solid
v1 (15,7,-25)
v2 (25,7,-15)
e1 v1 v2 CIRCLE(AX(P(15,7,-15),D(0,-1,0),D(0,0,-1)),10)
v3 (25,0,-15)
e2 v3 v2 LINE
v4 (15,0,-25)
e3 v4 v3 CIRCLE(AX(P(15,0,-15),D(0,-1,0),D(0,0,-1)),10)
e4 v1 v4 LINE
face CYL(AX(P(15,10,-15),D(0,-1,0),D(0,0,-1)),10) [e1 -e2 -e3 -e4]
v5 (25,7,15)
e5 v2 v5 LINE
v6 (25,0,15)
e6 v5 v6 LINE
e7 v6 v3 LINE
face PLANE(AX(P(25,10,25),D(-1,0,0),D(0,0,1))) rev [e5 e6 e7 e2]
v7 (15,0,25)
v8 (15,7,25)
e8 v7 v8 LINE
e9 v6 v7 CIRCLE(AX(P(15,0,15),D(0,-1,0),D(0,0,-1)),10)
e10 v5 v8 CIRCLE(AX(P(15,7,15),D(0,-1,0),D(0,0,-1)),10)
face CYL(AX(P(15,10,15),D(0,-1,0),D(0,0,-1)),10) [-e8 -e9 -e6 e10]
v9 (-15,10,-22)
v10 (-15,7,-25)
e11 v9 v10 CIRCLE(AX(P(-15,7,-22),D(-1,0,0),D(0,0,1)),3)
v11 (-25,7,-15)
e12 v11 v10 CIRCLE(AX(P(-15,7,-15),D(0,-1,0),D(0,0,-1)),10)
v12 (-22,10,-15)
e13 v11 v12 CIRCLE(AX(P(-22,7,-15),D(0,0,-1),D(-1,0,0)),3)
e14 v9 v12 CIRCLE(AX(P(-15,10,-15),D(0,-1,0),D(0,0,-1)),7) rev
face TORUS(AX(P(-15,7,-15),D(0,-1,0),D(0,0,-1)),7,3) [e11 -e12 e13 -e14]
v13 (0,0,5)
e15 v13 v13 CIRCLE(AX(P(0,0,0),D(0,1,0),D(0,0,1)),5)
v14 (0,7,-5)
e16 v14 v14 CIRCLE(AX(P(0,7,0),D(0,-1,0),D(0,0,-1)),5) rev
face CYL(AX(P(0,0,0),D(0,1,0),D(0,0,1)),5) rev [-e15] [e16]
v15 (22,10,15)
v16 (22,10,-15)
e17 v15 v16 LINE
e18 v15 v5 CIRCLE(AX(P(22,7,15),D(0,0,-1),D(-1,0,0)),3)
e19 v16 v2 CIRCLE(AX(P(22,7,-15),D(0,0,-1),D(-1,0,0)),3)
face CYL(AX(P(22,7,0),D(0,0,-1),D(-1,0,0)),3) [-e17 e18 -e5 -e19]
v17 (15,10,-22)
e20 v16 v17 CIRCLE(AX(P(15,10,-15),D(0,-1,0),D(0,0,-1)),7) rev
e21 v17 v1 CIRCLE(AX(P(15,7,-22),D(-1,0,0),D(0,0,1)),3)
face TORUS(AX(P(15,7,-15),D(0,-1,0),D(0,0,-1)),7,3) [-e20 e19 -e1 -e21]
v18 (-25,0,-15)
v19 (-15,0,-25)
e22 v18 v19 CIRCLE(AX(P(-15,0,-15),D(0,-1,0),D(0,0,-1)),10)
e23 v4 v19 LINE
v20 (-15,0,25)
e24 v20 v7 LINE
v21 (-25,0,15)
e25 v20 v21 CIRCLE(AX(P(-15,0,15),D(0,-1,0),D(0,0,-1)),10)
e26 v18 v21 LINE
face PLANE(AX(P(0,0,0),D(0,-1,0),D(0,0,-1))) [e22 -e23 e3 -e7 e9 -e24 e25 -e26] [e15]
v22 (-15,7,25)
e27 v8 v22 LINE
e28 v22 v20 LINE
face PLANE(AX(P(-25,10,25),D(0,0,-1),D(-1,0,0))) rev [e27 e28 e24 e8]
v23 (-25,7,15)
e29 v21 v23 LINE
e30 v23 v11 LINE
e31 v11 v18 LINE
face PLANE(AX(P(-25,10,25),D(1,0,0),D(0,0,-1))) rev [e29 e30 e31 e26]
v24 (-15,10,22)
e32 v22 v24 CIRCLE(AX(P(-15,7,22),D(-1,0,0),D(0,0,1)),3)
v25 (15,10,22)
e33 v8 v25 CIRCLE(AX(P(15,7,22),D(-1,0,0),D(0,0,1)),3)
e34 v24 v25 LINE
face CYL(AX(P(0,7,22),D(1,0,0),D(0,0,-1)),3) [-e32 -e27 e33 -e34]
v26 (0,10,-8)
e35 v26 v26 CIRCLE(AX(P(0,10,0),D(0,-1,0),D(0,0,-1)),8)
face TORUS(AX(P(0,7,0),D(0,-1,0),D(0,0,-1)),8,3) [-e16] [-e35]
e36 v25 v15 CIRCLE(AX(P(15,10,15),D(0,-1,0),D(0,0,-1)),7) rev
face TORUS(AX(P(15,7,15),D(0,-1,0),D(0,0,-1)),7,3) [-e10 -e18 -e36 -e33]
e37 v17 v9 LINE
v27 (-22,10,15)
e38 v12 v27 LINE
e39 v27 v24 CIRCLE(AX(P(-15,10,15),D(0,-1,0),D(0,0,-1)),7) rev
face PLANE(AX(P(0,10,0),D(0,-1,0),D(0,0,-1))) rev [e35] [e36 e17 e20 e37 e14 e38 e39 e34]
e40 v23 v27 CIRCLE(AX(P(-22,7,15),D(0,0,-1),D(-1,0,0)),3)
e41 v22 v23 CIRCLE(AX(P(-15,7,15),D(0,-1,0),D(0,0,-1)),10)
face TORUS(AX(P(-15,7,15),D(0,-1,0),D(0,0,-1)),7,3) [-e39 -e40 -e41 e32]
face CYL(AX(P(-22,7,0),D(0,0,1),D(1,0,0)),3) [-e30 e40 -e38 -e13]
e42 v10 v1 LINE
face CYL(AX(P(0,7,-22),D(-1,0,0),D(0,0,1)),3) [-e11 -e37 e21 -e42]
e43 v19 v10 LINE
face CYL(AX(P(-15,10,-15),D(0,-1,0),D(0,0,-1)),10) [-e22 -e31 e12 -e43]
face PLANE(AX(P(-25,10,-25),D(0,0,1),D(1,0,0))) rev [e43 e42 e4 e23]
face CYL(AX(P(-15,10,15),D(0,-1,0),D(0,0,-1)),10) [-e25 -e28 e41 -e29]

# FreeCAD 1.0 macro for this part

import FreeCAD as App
import Part
import Sketcher
from FreeCAD import Vector
Q = App.Units.Quantity


def edges_at(feature, points):
    """Names of the edges that pass closest to the given points."""
    edges = feature.Shape.Edges
    near = lambda p: min(range(len(edges)), key=lambda i: edges[i].distToShape(Part.Vertex(*p))[0])
    return sorted({f"Edge{near(p) + 1}" for p in points})

doc = App.newDocument("Part")
body = doc.addObject("PartDesign::Body", "Body")

sketch1 = body.newObject("Sketcher::SketchObject", "Sketch")
sketch1.AttachmentSupport = (doc.getObject("XZ_Plane"), [""])
sketch1.MapMode = "FlatFace"
sketch1.addGeometry([
    Part.LineSegment(Vector(-25, -25, 0), Vector(-25, 25, 0)),
    Part.LineSegment(Vector(-25, 25, 0), Vector(25, 25, 0)),
    Part.LineSegment(Vector(25, 25, 0), Vector(25, -25, 0)),
    Part.LineSegment(Vector(25, -25, 0), Vector(-25, -25, 0)),
], False)
sketch1.addConstraint([
    Sketcher.Constraint("Coincident", 0, 2, 1, 1),
    Sketcher.Constraint("Coincident", 1, 2, 2, 1),
    Sketcher.Constraint("Coincident", 2, 2, 3, 1),
    Sketcher.Constraint("Coincident", 3, 2, 0, 1),
    Sketcher.Constraint("Vertical", 0),
    Sketcher.Constraint("Horizontal", 1),
    Sketcher.Constraint("Vertical", 2),
    Sketcher.Constraint("Horizontal", 3),
    Sketcher.Constraint("Symmetric", 0, 2, 2, 2, -1, 1),
    Sketcher.Constraint("Equal", 3, 0),
    Sketcher.Constraint("DistanceX", 1, 1, 1, 2, Q("50 mm")),
])
pad1 = body.newObject("PartDesign::Pad", "Pad")
pad1.Profile = sketch1
pad1.Length = 10
pad1.Reversed = True
doc.recompute()

fillet = body.newObject("PartDesign::Fillet", "Fillet")
fillet.Base = (pad1, edges_at(pad1, [
    (25, 5, 25),
    (-25, 5, 25),
    (-25, 5, -25),
    (25, 5, -25),
]))
fillet.Radius = 10

sketch2 = body.newObject("Sketcher::SketchObject", "Sketch001")
sketch2.AttachmentSupport = (doc.getObject("XZ_Plane"), [""])
sketch2.MapMode = "FlatFace"
sketch2.AttachmentOffset = App.Placement(Vector(0, 0, -10), App.Rotation())
sketch2.addGeometry(Part.Circle(Vector(0, 0, 0), Vector(0, 0, 1), 5), False)
sketch2.addConstraint([
    Sketcher.Constraint("Coincident", 0, 3, -1, 1),
    Sketcher.Constraint("Diameter", 0, Q("10 mm")),
])
pocket1 = body.newObject("PartDesign::Pocket", "Pocket")
pocket1.Profile = sketch2
pocket1.Length = 10
pocket1.Reversed = True
doc.recompute()

fillet2 = body.newObject("PartDesign::Fillet", "Fillet001")
fillet2.Base = (pocket1, edges_at(pocket1, [
    (0, 10, 25),
    (-25, 10, 0),
    (25, 10, 0),
    (0, 10, -25),
    (22.071, 10, 22.071),
    (22.071, 10, -22.071),
    (-22.071, 10, -22.071),
    (-22.071, 10, 22.071),
    (-5, 10, 0),
]))
fillet2.Radius = 3

doc.recompute()
